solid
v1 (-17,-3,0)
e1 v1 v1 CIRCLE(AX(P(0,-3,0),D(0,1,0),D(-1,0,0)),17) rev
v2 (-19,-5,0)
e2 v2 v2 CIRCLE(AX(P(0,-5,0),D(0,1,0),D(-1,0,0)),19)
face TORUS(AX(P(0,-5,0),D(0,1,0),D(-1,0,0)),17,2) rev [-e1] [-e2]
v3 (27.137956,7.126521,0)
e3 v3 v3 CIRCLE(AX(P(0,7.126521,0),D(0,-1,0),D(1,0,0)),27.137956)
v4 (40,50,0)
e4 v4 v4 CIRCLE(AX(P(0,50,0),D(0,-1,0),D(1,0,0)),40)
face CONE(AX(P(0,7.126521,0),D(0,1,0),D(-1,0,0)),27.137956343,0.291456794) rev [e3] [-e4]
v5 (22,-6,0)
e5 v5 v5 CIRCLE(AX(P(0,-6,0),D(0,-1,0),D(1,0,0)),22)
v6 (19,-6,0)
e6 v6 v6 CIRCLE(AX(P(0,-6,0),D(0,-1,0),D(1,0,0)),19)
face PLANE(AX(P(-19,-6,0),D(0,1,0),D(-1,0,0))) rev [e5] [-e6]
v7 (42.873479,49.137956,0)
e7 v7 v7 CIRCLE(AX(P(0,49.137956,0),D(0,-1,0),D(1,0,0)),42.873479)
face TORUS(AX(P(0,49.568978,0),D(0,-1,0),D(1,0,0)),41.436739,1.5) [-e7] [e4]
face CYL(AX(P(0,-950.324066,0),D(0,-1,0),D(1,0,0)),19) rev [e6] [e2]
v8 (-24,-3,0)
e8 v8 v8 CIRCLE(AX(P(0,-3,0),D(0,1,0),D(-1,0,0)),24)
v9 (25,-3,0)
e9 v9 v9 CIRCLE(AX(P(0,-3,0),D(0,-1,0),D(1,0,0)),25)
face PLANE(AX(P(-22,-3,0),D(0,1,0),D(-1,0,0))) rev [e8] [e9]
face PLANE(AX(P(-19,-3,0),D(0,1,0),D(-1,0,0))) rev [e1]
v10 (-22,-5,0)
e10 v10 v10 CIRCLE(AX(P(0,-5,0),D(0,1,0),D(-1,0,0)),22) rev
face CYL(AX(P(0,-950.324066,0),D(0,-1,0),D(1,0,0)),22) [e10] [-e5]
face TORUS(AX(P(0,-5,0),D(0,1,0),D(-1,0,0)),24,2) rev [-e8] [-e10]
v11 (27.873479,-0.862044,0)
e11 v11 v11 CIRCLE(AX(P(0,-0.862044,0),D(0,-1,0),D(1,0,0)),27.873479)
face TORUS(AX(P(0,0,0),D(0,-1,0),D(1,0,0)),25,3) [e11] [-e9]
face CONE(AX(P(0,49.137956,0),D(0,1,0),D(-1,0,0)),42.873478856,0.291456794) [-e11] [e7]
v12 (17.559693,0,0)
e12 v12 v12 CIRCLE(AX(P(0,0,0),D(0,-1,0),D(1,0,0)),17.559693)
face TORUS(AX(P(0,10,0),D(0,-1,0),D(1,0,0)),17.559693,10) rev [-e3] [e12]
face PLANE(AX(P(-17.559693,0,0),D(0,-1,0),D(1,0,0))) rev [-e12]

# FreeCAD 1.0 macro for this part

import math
import FreeCAD as App
import Part
import Sketcher

V = App.Vector
Q = App.Units.Quantity


def edges_at(feature, points):
    """Names of the edges that pass closest to the given points."""
    edges = feature.Shape.Edges
    near = lambda p: min(range(len(edges)), key=lambda i: edges[i].distToShape(Part.Vertex(*p))[0])
    return sorted({f"Edge{near(p) + 1}" for p in points})

doc = App.newDocument("Part")
params = doc.addObject("Spreadsheet::Sheet", "Params")
for row, (alias, value) in enumerate([
    ("sketch1_radius", "3 mm"),
    ("sketch1_radius2", "10 mm"),
    ("sketch1_radius3", "1.5 mm"),
    ("sketch1_width", "19 mm"),
    ("revolution_angle", "360 deg"),
    ("fillet_radius", "2 mm"),
], start=1):
    params.set(f"A{row}", alias)
    params.set(f"B{row}", "=" + value)
    params.setAlias(f"B{row}", alias)

body = doc.addObject("PartDesign::Body", "Body")

sketch1 = doc.addObject("Sketcher::SketchObject", "Sketch")
body.addObject(sketch1)
sketch1.AttachmentSupport = (doc.XY_Plane, [""])
sketch1.MapMode = "FlatFace"
sketch1.addGeometry([
    Part.LineSegment(V(-27.137956, 7.126521, 0), V(-40, 50, 0)),
    Part.ArcOfCircle(Part.Circle(V(-41.436739, 49.568978, 0), V(0, 0, 1), 1.5), math.radians(16.699244), math.radians(196.699244)),
    Part.LineSegment(V(-42.873479, 49.137956, 0), V(-27.873479, -0.862044, 0)),
    Part.ArcOfCircle(Part.Circle(V(-25, 0, 0), V(0, 0, 1), 3), math.radians(-163.300756), math.radians(-90)),
    Part.LineSegment(V(-25, -3, 0), V(-22, -3, 0)),
    Part.LineSegment(V(-22, -3, 0), V(-22, -6, 0)),
    Part.LineSegment(V(-22, -6, 0), V(-19, -6, 0)),
    Part.LineSegment(V(-19, -6, 0), V(-19, -3, 0)),
    Part.LineSegment(V(-19, -3, 0), V(0, -3, 0)),
    Part.LineSegment(V(0, -3, 0), V(0, 0, 0)),
    Part.LineSegment(V(0, 0, 0), V(-17.559693, 0, 0)),
    Part.ArcOfCircle(Part.Circle(V(-17.559693, 10, 0), V(0, 0, 1), 10), math.radians(-163.300756), math.radians(-90)),
], False)
sketch1.addConstraint([
    Sketcher.Constraint("Tangent", 0, 2, 1, 1),
    Sketcher.Constraint("Tangent", 1, 2, 2, 1),
    Sketcher.Constraint("Tangent", 2, 2, 3, 1),
    Sketcher.Constraint("Tangent", 3, 2, 4, 1),
    Sketcher.Constraint("Coincident", 4, 2, 5, 1),
    Sketcher.Constraint("Coincident", 5, 2, 6, 1),
    Sketcher.Constraint("Coincident", 6, 2, 7, 1),
    Sketcher.Constraint("Coincident", 7, 2, 8, 1),
    Sketcher.Constraint("Coincident", 8, 2, 9, 1),
    Sketcher.Constraint("Coincident", 9, 2, 10, 1),
    Sketcher.Constraint("Tangent", 10, 2, 11, 2),
    Sketcher.Constraint("Tangent", 11, 1, 0, 1),
    Sketcher.Constraint("Horizontal", 4),
    Sketcher.Constraint("Vertical", 5),
    Sketcher.Constraint("Horizontal", 6),
    Sketcher.Constraint("Vertical", 7),
    Sketcher.Constraint("Horizontal", 8),
    Sketcher.Constraint("Vertical", 9),
    Sketcher.Constraint("Horizontal", 10),
    Sketcher.Constraint("Coincident", 9, 2, -1, 1),
    Sketcher.Constraint("PointOnObject", 3, 3, -1),
    Sketcher.Constraint("Parallel", 0, 2),
    Sketcher.Constraint("Horizontal", 4, 2, 7, 2),
    Sketcher.Constraint("Equal", 4, 6),
    Sketcher.Constraint("Equal", 6, 5),
    Sketcher.Constraint("Equal", 7, 9),
    Sketcher.Constraint("Radius", 3, Q("3 mm")),
    Sketcher.Constraint("Radius", 11, Q("10 mm")),
    Sketcher.Constraint("Radius", 1, Q("1.5 mm")),
    Sketcher.Constraint("DistanceX", 8, 1, 8, 2, Q("19 mm")),
    Sketcher.Constraint("DistanceX", 0, 2, -1, 1, Q("40 mm")),
    Sketcher.Constraint("DistanceY", -1, 1, 0, 2, Q("50 mm")),
])
sketch1.setExpression("Constraints[26]", "Params.sketch1_radius")
sketch1.setExpression("Constraints[27]", "Params.sketch1_radius2")
sketch1.setExpression("Constraints[28]", "Params.sketch1_radius3")
sketch1.setExpression("Constraints[29]", "Params.sketch1_width")
revolution = doc.addObject("PartDesign::Revolution", "Revolution")
body.addObject(revolution)
revolution.Profile = sketch1
revolution.ReferenceAxis = (sketch1, ["V_Axis"])
revolution.setExpression("Angle", "Params.revolution_angle")
doc.recompute()

fillet = doc.addObject("PartDesign::Fillet", "Fillet")
body.addObject(fillet)
fillet.Base = (revolution, edges_at(revolution, [(-19, -3, 0), (-22, -3, 0)]))
fillet.setExpression("Radius", "Params.fillet_radius")

doc.recompute()
